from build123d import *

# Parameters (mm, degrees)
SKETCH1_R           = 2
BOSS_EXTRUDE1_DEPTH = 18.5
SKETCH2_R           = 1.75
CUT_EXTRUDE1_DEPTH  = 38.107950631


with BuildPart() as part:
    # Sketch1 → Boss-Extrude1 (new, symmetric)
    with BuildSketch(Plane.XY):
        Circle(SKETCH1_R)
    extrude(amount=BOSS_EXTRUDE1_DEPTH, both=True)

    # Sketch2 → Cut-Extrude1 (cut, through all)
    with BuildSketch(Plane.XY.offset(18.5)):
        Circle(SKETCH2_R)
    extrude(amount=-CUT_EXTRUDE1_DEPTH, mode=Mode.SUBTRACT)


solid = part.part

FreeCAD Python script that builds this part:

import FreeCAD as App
import Part
import Sketcher

V = App.Vector

doc = App.newDocument("Part")
body = doc.addObject("PartDesign::Body", "Body")

sketch1 = body.newObject("Sketcher::SketchObject", "Sketch")
sketch1.AttachmentSupport = (doc.getObject("XY_Plane"), [""])
sketch1.MapMode = "FlatFace"
sketch1.addGeometry(Part.Circle(V(0, 0, 0), V(0, 0, 1), 2), False)
sketch1.addConstraint([
    Sketcher.Constraint("Coincident", 0, 3, -1, 1),
    Sketcher.Constraint("Diameter", 0, 4.0),
])
pad1 = body.newObject("PartDesign::Pad", "Pad")
pad1.Profile = sketch1
pad1.Length = 37
pad1.Midplane = True

sketch2 = body.newObject("Sketcher::SketchObject", "Sketch001")
sketch2.AttachmentSupport = (doc.getObject("XY_Plane"), [""])
sketch2.MapMode = "FlatFace"
sketch2.AttachmentOffset = App.Placement(V(0, 0, 18.5), App.Rotation())
sketch2.addGeometry(Part.Circle(V(0, 0, 0), V(0, 0, 1), 1.8), False)
sketch2.addConstraint([
    Sketcher.Constraint("Coincident", 0, 3, -1, 1),
    Sketcher.Constraint("Diameter", 0, 3.5),
])
pocket1 = body.newObject("PartDesign::Pocket", "Pocket")
pocket1.Profile = sketch2
pocket1.Type = "ThroughAll"

doc.recompute()
